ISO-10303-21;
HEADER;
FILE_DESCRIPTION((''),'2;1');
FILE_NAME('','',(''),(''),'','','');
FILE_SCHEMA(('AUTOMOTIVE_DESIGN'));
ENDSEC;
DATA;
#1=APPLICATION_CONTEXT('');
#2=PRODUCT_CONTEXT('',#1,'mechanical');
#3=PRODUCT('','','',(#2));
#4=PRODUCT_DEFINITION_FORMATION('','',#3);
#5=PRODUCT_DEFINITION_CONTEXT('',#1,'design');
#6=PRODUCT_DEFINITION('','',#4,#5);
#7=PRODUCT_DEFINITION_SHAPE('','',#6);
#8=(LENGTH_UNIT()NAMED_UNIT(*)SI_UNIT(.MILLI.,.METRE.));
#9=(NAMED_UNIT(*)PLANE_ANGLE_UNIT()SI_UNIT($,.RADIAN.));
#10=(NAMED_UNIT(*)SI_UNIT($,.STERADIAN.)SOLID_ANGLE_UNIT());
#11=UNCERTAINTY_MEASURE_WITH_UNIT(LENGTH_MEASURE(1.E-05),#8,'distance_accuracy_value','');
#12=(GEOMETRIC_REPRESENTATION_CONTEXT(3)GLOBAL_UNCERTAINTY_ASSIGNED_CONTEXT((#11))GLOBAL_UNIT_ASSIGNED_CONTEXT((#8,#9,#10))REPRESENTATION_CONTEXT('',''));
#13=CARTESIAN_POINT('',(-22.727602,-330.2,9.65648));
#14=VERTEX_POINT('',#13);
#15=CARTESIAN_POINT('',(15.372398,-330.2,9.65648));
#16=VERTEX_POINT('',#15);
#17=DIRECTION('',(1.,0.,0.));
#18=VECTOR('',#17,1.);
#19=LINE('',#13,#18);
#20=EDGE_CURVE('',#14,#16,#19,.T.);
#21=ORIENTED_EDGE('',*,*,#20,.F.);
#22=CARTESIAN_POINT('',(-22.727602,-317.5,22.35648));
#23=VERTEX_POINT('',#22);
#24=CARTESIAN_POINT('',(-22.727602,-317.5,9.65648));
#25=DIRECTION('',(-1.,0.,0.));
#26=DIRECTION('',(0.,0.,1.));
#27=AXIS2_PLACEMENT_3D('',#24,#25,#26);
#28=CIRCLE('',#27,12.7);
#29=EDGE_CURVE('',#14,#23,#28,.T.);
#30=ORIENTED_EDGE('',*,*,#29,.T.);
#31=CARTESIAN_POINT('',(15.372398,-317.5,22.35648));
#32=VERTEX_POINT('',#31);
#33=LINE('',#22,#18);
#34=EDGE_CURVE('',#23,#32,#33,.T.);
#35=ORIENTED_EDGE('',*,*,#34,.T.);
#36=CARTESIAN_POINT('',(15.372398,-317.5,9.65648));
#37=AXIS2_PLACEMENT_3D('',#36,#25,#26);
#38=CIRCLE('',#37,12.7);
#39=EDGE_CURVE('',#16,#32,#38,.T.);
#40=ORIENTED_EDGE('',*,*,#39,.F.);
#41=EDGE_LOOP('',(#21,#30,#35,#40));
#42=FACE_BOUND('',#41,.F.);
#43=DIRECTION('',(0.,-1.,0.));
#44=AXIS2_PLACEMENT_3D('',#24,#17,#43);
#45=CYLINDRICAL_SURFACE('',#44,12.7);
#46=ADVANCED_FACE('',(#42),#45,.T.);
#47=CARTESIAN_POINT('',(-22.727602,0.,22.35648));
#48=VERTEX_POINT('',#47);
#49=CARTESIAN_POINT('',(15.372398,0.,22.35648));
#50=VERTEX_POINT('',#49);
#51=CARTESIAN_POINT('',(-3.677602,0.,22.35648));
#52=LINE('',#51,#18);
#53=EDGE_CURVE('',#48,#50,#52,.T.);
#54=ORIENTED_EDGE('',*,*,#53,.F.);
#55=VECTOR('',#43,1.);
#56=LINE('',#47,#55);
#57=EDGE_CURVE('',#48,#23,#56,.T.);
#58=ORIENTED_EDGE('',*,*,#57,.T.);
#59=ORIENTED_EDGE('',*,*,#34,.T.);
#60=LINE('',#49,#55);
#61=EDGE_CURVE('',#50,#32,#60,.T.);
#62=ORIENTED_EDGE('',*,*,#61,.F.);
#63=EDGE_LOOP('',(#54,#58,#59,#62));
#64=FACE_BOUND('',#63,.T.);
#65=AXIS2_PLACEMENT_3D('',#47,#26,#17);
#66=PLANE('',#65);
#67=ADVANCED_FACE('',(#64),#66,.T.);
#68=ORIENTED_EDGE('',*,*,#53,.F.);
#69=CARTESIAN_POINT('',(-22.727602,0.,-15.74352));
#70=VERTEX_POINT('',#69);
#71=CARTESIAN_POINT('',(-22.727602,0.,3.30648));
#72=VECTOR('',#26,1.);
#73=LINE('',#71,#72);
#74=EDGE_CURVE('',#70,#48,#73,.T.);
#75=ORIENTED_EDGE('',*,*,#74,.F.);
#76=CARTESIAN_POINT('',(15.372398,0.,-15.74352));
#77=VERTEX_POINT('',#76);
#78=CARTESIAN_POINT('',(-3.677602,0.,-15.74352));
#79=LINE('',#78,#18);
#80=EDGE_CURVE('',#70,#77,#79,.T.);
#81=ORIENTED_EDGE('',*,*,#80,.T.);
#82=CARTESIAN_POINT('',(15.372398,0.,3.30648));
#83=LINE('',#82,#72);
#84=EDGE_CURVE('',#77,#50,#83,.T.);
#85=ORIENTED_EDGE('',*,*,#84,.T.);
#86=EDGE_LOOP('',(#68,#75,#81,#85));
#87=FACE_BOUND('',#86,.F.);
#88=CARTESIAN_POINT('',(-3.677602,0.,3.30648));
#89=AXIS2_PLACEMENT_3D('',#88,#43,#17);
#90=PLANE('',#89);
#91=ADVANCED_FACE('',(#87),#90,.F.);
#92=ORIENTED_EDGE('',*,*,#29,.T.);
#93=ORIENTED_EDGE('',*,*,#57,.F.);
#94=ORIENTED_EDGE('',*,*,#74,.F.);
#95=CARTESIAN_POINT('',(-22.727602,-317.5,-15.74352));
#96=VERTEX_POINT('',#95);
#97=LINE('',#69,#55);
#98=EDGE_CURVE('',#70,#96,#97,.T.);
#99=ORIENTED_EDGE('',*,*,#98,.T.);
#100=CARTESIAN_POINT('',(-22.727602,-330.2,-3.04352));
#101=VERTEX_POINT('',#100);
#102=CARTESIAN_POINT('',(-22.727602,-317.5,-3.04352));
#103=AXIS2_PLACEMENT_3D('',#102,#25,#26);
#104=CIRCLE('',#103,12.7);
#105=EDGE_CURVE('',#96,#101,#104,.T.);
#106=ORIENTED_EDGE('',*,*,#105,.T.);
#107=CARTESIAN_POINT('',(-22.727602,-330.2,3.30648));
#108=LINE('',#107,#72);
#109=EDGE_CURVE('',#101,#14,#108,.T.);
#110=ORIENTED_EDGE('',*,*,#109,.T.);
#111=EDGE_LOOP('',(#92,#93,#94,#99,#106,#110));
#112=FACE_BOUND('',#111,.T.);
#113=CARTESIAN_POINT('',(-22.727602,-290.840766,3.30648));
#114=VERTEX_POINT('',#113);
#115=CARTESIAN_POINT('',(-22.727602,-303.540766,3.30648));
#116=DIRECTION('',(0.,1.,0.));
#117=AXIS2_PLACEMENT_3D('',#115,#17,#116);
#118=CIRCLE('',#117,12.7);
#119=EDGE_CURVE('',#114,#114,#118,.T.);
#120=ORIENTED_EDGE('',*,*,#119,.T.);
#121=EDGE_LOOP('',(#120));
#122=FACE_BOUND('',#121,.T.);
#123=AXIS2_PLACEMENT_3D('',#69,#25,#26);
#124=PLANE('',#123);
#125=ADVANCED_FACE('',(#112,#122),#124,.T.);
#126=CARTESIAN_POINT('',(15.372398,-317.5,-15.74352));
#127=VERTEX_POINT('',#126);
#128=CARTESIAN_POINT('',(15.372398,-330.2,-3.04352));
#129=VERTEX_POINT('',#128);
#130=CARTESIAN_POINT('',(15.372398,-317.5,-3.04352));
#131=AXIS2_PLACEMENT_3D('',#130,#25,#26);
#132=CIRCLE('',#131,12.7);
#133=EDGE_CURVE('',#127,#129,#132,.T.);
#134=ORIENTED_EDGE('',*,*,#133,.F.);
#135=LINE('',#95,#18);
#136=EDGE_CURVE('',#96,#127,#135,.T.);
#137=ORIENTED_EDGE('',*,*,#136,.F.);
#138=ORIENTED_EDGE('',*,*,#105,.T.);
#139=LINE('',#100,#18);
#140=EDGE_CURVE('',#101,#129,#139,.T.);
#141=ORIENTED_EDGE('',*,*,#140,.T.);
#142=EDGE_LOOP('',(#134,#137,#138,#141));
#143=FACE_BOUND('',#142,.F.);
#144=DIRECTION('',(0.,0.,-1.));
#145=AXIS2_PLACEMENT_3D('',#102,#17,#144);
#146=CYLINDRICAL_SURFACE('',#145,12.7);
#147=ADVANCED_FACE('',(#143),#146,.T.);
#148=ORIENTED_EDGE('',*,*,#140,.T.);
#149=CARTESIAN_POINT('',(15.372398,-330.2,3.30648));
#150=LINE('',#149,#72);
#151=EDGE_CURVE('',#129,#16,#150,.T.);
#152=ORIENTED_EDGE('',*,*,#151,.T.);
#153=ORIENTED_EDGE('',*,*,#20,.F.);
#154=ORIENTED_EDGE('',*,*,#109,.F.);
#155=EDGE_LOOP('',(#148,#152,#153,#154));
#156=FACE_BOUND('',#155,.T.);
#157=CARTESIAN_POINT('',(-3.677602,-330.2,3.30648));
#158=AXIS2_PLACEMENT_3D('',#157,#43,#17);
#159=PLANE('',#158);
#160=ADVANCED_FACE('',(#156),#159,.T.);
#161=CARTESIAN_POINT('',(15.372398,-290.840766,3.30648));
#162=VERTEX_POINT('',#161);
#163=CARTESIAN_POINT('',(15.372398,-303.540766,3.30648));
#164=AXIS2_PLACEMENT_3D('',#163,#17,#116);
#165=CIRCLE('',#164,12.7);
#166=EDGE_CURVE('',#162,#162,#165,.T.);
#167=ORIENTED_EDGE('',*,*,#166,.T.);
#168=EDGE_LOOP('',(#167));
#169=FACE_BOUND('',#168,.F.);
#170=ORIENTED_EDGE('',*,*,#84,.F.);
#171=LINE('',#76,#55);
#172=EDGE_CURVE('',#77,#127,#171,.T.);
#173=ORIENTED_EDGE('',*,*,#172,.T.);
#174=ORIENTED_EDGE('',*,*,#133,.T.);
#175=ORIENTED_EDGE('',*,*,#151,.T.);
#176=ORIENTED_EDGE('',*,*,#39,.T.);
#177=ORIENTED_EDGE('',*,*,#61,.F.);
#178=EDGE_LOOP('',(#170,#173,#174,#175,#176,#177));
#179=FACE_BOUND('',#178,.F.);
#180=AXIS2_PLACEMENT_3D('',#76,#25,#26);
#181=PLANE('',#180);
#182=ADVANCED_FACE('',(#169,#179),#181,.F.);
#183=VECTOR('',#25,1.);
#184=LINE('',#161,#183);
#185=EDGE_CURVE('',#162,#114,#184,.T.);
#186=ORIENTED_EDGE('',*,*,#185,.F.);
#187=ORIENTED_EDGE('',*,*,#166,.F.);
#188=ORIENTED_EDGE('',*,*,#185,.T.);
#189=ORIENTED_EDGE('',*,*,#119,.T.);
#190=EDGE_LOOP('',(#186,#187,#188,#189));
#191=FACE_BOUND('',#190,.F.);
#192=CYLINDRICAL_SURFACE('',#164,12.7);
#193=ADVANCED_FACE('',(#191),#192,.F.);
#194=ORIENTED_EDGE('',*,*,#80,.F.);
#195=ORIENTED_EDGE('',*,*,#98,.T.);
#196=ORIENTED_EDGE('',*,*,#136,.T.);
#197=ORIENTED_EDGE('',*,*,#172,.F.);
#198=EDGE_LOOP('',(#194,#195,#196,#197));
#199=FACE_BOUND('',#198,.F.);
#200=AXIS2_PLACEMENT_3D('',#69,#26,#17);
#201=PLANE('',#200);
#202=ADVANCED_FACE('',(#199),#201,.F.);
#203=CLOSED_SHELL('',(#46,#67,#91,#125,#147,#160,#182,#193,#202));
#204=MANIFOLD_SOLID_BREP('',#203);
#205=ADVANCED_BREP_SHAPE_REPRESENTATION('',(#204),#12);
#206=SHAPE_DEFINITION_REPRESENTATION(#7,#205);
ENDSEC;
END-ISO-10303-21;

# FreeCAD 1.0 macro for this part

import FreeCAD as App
import Part
import Sketcher
from FreeCAD import Vector
Q = App.Units.Quantity


def edges_at(feature, points):
    """Names of the edges that pass closest to the given points."""
    edges = feature.Shape.Edges
    near = lambda p: min(range(len(edges)), key=lambda i: edges[i].distToShape(Part.Vertex(*p))[0])
    return sorted({f"Edge{near(p) + 1}" for p in points})

doc = App.newDocument("Part")
body = doc.addObject("PartDesign::Body", "Body")

# Sketch on XZ plane
sketch1 = body.newObject("Sketcher::SketchObject", "Sketch")
sketch1.AttachmentSupport = (doc.getObject("XZ_Plane"), [""])
sketch1.MapMode = "FlatFace"
sketch1.addGeometry(Part.LineSegment(Vector(-23, 22, 0), Vector(-23, -16, 0)), False)
sketch1.addGeometry(Part.LineSegment(Vector(-23, -16, 0), Vector(15, -16, 0)), False)
sketch1.addGeometry(Part.LineSegment(Vector(15, -16, 0), Vector(15, 22, 0)), False)
sketch1.addGeometry(Part.LineSegment(Vector(15, 22, 0), Vector(-23, 22, 0)), False)
sketch1.addConstraint(Sketcher.Constraint("Coincident", 0, 2, 1, 1))
sketch1.addConstraint(Sketcher.Constraint("Coincident", 1, 2, 2, 1))
sketch1.addConstraint(Sketcher.Constraint("Coincident", 2, 2, 3, 1))
sketch1.addConstraint(Sketcher.Constraint("Coincident", 3, 2, 0, 1))
sketch1.addConstraint(Sketcher.Constraint("Vertical", 0))
sketch1.addConstraint(Sketcher.Constraint("Horizontal", 1))
sketch1.addConstraint(Sketcher.Constraint("Vertical", 2))
sketch1.addConstraint(Sketcher.Constraint("Horizontal", 3))
sketch1.addConstraint(Sketcher.Constraint("Equal", 3, 0))
sketch1.addConstraint(Sketcher.Constraint("DistanceX", 1, 1, 1, 2, Q("1.5 in")))
sketch1.addConstraint(Sketcher.Constraint("DistanceY", 0, 2, -1, 1, 15.74352))
sketch1.addConstraint(Sketcher.Constraint("DistanceX", 0, 2, -1, 1, 22.727602))
pad1 = body.newObject("PartDesign::Pad", "Pad")
pad1.Profile = sketch1
pad1.Length = Q("13 in")

# Sketch on YZ plane
sketch2 = body.newObject("Sketcher::SketchObject", "Sketch001")
sketch2.AttachmentSupport = (doc.getObject("YZ_Plane"), [""])
sketch2.MapMode = "FlatFace"
sketch2.AttachmentOffset = App.Placement(Vector(0, 0, 15.372398), App.Rotation())
sketch2.addGeometry(Part.Circle(Vector(-304, 3, 0), Vector(0, 0, 1), 13), False)
sketch2.addConstraint(Sketcher.Constraint("Diameter", 0, Q("1 in")))
sketch2.addConstraint(Sketcher.Constraint("DistanceY", -1, 1, 0, 3, 3.30648))
sketch2.addConstraint(Sketcher.Constraint("DistanceX", 0, 3, -1, 1, 303.540766))
pocket1 = body.newObject("PartDesign::Pocket", "Pocket")
pocket1.Profile = sketch2
pocket1.Type = "ThroughAll"
doc.recompute()

fillet = body.newObject("PartDesign::Fillet", "Fillet")
fillet.Base = (pocket1, edges_at(pocket1, [(-3.678, -330.2, 22.356), (-3.678, -330.2, -15.744)]))
fillet.Radius = Q("0.5 in")

doc.recompute()
